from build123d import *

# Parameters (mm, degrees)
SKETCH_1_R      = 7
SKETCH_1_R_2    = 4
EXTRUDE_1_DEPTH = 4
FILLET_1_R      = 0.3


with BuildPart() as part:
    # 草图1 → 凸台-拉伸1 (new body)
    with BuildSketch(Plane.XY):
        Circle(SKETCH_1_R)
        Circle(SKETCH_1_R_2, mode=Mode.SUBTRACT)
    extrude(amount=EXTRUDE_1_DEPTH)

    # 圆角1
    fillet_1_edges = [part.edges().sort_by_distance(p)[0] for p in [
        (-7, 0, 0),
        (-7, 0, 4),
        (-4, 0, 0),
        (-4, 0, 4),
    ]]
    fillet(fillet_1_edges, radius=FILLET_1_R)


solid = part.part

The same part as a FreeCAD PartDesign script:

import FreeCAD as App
import Part
import Sketcher
Q = App.Units.Quantity


def edges_at(feature, points):
    """Names of the edges that pass closest to the given points."""
    edges = feature.Shape.Edges
    near = lambda p: min(range(len(edges)), key=lambda i: edges[i].distToShape(Part.Vertex(*p))[0])
    return sorted({f"Edge{near(p) + 1}" for p in points})

doc = App.newDocument("Part")
body = doc.addObject("PartDesign::Body", "Body")

# Sketch on XY plane
sketch1 = doc.addObject("Sketcher::SketchObject", "Sketch")
body.addObject(sketch1)
sketch1.AttachmentSupport = (doc.XY_Plane, [""])
sketch1.MapMode = "FlatFace"
sketch1.addGeometry([
    Part.Circle(App.Vector(0, 0, 0), App.Vector(0, 0, 1), 7),
    Part.Circle(App.Vector(0, 0, 0), App.Vector(0, 0, 1), 4),
], False)
sketch1.addConstraint([
    Sketcher.Constraint("Coincident", 0, 3, -1, 1),
    Sketcher.Constraint("Coincident", 1, 3, -1, 1),
    Sketcher.Constraint("Diameter", 0, Q("14 mm")),
    Sketcher.Constraint("Diameter", 1, Q("8 mm")),
])
pad1 = doc.addObject("PartDesign::Pad", "Pad")
body.addObject(pad1)
pad1.Profile = sketch1
pad1.Length = 4
doc.recompute()

fillet = doc.addObject("PartDesign::Fillet", "Fillet")
body.addObject(fillet)
fillet.Base = (pad1, edges_at(pad1, [
    (-7, 0, 0),
    (-7, 0, 4),
    (-4, 0, 0),
    (-4, 0, 4),
]))
fillet.Radius = 0.3

doc.recompute()
